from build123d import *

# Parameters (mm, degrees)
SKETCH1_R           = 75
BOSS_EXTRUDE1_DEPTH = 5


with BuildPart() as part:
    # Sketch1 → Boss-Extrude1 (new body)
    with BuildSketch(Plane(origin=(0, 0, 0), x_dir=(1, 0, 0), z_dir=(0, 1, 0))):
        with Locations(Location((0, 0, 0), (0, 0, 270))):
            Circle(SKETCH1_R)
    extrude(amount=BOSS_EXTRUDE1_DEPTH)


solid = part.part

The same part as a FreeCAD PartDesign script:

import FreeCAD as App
import Part
import Sketcher

doc = App.newDocument("Part")
body = doc.addObject("PartDesign::Body", "Body")

sketch1 = body.newObject("Sketcher::SketchObject", "Sketch")
sketch1.AttachmentSupport = (doc.getObject("XZ_Plane"), [""])
sketch1.MapMode = "FlatFace"
sketch1.addGeometry(Part.Circle(App.Vector(0, 0, 0), App.Vector(0, 0, 1), 75), False)
sketch1.addConstraint(Sketcher.Constraint("Coincident", 0, 3, -1, 1))
sketch1.addConstraint(Sketcher.Constraint("Diameter", 0, 150.0))
pad1 = body.newObject("PartDesign::Pad", "Pad")
pad1.Profile = sketch1
pad1.Length = 5
pad1.Reversed = True

doc.recompute()
